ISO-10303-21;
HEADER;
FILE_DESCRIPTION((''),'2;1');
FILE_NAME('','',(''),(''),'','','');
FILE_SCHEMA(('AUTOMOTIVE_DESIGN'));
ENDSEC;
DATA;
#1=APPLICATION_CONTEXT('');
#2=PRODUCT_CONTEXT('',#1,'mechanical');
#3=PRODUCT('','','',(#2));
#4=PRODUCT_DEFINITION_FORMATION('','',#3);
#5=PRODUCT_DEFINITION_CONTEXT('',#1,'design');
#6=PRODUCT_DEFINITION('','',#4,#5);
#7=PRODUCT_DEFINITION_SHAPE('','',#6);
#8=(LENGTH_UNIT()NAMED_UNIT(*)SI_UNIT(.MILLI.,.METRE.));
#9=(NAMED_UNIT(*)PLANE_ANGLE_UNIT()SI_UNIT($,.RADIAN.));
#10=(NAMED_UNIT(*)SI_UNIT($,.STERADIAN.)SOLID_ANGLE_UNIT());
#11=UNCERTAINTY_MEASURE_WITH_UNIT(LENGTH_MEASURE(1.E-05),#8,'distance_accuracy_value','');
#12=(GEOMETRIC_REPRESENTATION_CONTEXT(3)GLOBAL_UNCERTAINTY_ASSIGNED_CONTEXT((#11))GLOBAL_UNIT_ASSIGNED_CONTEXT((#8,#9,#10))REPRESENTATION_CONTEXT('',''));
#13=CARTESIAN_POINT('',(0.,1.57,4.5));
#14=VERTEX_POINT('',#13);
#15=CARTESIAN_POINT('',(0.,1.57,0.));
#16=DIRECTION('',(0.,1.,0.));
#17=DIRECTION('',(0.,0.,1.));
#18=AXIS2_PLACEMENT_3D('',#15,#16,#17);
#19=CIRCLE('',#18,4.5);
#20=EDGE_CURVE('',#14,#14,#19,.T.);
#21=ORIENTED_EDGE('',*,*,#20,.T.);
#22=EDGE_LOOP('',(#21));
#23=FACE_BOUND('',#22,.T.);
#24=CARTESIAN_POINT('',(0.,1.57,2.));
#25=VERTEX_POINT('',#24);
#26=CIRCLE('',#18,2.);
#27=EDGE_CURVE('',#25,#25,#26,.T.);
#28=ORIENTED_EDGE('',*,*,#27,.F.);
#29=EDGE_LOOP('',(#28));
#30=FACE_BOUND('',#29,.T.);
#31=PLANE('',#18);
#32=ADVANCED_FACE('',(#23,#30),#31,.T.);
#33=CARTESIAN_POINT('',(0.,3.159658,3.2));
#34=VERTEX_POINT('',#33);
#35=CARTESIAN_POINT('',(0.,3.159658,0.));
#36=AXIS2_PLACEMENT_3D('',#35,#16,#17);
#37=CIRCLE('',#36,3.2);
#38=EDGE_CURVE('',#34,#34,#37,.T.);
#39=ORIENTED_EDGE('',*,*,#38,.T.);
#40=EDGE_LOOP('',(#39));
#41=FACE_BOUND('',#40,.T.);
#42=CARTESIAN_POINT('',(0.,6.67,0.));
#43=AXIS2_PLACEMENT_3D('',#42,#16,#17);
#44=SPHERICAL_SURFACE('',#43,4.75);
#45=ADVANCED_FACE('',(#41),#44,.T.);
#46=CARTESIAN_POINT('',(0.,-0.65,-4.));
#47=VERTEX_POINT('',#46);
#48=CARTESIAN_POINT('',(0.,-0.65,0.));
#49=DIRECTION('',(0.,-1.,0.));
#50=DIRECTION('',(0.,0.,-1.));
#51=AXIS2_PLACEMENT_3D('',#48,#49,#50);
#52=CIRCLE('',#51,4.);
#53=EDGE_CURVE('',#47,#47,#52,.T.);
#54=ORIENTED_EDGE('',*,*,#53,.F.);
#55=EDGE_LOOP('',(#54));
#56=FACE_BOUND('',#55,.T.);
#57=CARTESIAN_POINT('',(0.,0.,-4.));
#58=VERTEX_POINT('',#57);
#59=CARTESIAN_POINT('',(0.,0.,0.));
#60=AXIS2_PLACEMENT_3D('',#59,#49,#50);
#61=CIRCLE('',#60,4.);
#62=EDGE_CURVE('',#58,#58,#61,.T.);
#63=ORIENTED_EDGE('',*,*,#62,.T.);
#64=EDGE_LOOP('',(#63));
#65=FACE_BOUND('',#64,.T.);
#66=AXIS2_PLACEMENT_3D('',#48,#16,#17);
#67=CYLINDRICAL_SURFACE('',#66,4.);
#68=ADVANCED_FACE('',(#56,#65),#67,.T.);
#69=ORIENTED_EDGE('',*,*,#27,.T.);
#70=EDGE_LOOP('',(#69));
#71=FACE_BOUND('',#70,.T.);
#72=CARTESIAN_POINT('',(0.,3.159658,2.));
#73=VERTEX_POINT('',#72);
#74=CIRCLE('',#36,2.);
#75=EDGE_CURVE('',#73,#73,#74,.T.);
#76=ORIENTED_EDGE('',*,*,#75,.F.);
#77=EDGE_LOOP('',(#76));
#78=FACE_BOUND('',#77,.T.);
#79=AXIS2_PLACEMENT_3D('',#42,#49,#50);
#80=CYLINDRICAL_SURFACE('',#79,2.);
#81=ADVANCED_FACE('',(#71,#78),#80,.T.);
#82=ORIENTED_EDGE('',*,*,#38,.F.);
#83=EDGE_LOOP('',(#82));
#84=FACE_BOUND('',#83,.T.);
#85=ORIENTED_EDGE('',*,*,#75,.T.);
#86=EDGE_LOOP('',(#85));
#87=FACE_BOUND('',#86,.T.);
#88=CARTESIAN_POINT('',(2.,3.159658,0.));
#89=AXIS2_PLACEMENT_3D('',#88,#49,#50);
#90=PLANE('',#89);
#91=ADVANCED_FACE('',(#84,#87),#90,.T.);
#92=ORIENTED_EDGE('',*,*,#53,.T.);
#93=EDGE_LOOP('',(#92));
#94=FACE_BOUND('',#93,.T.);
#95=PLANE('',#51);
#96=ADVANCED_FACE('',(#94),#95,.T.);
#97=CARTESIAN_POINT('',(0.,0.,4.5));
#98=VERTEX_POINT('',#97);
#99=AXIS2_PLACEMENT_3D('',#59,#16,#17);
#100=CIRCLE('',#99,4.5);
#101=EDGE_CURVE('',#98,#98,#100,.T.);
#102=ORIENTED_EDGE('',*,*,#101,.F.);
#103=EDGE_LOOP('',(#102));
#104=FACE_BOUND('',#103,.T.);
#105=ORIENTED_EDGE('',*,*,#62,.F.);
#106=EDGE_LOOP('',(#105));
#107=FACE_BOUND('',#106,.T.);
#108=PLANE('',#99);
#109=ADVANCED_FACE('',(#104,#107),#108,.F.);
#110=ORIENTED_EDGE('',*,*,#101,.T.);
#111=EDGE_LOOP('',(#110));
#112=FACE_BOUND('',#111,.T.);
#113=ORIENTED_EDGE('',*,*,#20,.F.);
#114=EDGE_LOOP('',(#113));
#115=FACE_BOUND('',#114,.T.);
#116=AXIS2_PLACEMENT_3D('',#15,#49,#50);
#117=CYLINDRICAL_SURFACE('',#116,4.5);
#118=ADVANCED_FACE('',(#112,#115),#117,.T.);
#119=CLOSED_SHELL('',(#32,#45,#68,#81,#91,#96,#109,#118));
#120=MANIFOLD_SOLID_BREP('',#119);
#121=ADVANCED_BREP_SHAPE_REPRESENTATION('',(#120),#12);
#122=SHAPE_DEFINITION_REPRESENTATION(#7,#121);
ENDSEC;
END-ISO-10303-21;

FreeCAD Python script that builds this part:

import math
import FreeCAD as App
import Part
import Sketcher

V = App.Vector

doc = App.newDocument("Part")
body = doc.addObject("PartDesign::Body", "Body")

# Sketch on XZ plane
sketch1 = body.newObject("Sketcher::SketchObject", "Sketch")
sketch1.AttachmentSupport = (doc.getObject("XZ_Plane"), [""])
sketch1.MapMode = "FlatFace"
sketch1.addGeometry(Part.Circle(V(0, 0, 0), V(0, 0, 1), 4.5), False)
sketch1.addConstraint([
    Sketcher.Constraint("Coincident", 0, 3, -1, 1),
    Sketcher.Constraint("Diameter", 0, 9.0),
])
pad1 = body.newObject("PartDesign::Pad", "Pad")
pad1.Profile = sketch1
pad1.Length = 1.57
pad1.Reversed = True

# Sketch on XZ plane
sketch2 = body.newObject("Sketcher::SketchObject", "Sketch001")
sketch2.AttachmentSupport = (doc.getObject("XZ_Plane"), [""])
sketch2.MapMode = "FlatFace"
sketch2.AttachmentOffset = App.Placement(V(0, 0, -1.57), App.Rotation())
sketch2.addGeometry(Part.Circle(V(0, 0, 0), V(0, 0, 1), 2), False)
sketch2.addConstraint([
    Sketcher.Constraint("Coincident", 0, 3, -1, 1),
    Sketcher.Constraint("Diameter", 0, 4.0),
])
pad2 = body.newObject("PartDesign::Pad", "Pad001")
pad2.Profile = sketch2
pad2.Length = 5.1
pad2.Reversed = True

# Sketch on XZ plane
sketch3 = body.newObject("Sketcher::SketchObject", "Sketch002")
sketch3.AttachmentSupport = (doc.getObject("XZ_Plane"), [""])
sketch3.MapMode = "FlatFace"
sketch3.AttachmentOffset = App.Placement(V(0, 0, -6.67), App.Rotation())
sketch3.addGeometry([
    Part.LineSegment(V(0, -4.8, 0), V(0, 4.8, 0)),
    Part.ArcOfCircle(Part.Circle(V(0, 0, 0), V(0, 0, 1), 4.8), math.radians(-90), math.radians(90)),
], False)
sketch3.addConstraint([
    Sketcher.Constraint("Coincident", 0, 1, 1, 1),
    Sketcher.Constraint("Coincident", 1, 2, 0, 2),
    Sketcher.Constraint("Vertical", 0),
    Sketcher.Constraint("Coincident", 1, 3, -1, 1),
    Sketcher.Constraint("PointOnObject", 0, 1, -2),
    Sketcher.Constraint("Radius", 1, 4.75),
])
revolution = body.newObject("PartDesign::Revolution", "Revolution")
revolution.Profile = sketch3
revolution.ReferenceAxis = (sketch3, ["V_Axis"])
revolution.Angle = 360

# Sketch on XY plane
sketch4 = body.newObject("Sketcher::SketchObject", "Sketch003")
sketch4.AttachmentSupport = (doc.getObject("XY_Plane"), [""])
sketch4.MapMode = "FlatFace"
sketch4.addGeometry([
    Part.LineSegment(V(2, 3.2, 0), V(2, 2.4, 0)),
    Part.LineSegment(V(2, 2.4, 0), V(3.2, 2.4, 0)),
    Part.LineSegment(V(3.2, 2.4, 0), V(3.2, 3.2, 0)),
    Part.LineSegment(V(3.2, 3.2, 0), V(2, 3.2, 0)),
], False)
sketch4.addConstraint([
    Sketcher.Constraint("Coincident", 0, 2, 1, 1),
    Sketcher.Constraint("Coincident", 1, 2, 2, 1),
    Sketcher.Constraint("Coincident", 2, 2, 3, 1),
    Sketcher.Constraint("Coincident", 3, 2, 0, 1),
    Sketcher.Constraint("Vertical", 0),
    Sketcher.Constraint("Horizontal", 1),
    Sketcher.Constraint("Vertical", 2),
    Sketcher.Constraint("Horizontal", 3),
    Sketcher.Constraint("DistanceX", 1, 1, 1, 2, 1.2),
    Sketcher.Constraint("DistanceX", -1, 1, 0, 2, 2.0),
    Sketcher.Constraint("DistanceY", 0, 2, 0, 1, 0.79808),
    Sketcher.Constraint("DistanceY", -1, 1, 0, 2, 2.361578),
])
groove = body.newObject("PartDesign::Groove", "Groove")
groove.Profile = sketch4
groove.ReferenceAxis = (sketch4, ["V_Axis"])
groove.Angle = 360

# Sketch on XZ plane
sketch5 = body.newObject("Sketcher::SketchObject", "Sketch004")
sketch5.AttachmentSupport = (doc.getObject("XZ_Plane"), [""])
sketch5.MapMode = "FlatFace"
sketch5.addGeometry(Part.Circle(V(0, 0, 0), V(0, 0, 1), 4), False)
sketch5.addConstraint([
    Sketcher.Constraint("Coincident", 0, 3, -1, 1),
    Sketcher.Constraint("Diameter", 0, 8.0),
])
pad3 = body.newObject("PartDesign::Pad", "Pad002")
pad3.Profile = sketch5
pad3.Length = 0.65

doc.recompute()
